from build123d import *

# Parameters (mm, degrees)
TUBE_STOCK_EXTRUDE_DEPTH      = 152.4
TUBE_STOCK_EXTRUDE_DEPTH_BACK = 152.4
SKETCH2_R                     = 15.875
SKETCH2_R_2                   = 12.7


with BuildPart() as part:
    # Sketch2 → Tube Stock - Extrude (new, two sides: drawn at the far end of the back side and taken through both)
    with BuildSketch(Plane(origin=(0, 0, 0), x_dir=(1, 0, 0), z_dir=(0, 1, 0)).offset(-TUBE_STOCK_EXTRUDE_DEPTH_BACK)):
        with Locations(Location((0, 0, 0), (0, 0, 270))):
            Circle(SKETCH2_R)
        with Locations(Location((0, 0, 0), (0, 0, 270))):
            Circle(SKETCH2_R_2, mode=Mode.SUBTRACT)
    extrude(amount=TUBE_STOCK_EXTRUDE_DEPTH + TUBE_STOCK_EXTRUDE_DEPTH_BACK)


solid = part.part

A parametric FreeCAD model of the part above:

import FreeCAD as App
import Part
import Sketcher

V = App.Vector
Q = App.Units.Quantity

doc = App.newDocument("Part")
params = doc.addObject("Spreadsheet::Sheet", "Params")
for row, (alias, value) in enumerate([
    ("sketch1_diameter", "1 in"),
    ("sketch1_diameter2", "1.25 in"),
    ("pad1_length", "6 in"),
    ("pad1_length2", "6 in"),
], start=1):
    params.set(f"A{row}", alias)
    params.set(f"B{row}", "=" + value)
    params.setAlias(f"B{row}", alias)

body = doc.addObject("PartDesign::Body", "Body")

# Sketch on XZ plane
sketch1 = body.newObject("Sketcher::SketchObject", "Sketch")
sketch1.AttachmentSupport = (doc.getObject("XZ_Plane"), [""])
sketch1.MapMode = "FlatFace"
sketch1.addGeometry([
    Part.Circle(V(0, 0, 0), V(0, 0, 1), 16),
    Part.Circle(V(0, 0, 0), V(0, 0, 1), 13),
], False)
sketch1.addConstraint([
    Sketcher.Constraint("Coincident", 0, 3, -1, 1),
    Sketcher.Constraint("Coincident", 1, 3, -1, 1),
    Sketcher.Constraint("Diameter", 1, Q("1 in")),
    Sketcher.Constraint("Diameter", 0, Q("1.25 in")),
])
sketch1.setExpression("Constraints[2]", "Params.sketch1_diameter")
sketch1.setExpression("Constraints[3]", "Params.sketch1_diameter2")
pad1 = body.newObject("PartDesign::Pad", "Pad")
pad1.Profile = sketch1
pad1.Type = "TwoLengths"
pad1.setExpression("Length", "Params.pad1_length")
pad1.setExpression("Length2", "Params.pad1_length2")
pad1.Reversed = True

doc.recompute()
